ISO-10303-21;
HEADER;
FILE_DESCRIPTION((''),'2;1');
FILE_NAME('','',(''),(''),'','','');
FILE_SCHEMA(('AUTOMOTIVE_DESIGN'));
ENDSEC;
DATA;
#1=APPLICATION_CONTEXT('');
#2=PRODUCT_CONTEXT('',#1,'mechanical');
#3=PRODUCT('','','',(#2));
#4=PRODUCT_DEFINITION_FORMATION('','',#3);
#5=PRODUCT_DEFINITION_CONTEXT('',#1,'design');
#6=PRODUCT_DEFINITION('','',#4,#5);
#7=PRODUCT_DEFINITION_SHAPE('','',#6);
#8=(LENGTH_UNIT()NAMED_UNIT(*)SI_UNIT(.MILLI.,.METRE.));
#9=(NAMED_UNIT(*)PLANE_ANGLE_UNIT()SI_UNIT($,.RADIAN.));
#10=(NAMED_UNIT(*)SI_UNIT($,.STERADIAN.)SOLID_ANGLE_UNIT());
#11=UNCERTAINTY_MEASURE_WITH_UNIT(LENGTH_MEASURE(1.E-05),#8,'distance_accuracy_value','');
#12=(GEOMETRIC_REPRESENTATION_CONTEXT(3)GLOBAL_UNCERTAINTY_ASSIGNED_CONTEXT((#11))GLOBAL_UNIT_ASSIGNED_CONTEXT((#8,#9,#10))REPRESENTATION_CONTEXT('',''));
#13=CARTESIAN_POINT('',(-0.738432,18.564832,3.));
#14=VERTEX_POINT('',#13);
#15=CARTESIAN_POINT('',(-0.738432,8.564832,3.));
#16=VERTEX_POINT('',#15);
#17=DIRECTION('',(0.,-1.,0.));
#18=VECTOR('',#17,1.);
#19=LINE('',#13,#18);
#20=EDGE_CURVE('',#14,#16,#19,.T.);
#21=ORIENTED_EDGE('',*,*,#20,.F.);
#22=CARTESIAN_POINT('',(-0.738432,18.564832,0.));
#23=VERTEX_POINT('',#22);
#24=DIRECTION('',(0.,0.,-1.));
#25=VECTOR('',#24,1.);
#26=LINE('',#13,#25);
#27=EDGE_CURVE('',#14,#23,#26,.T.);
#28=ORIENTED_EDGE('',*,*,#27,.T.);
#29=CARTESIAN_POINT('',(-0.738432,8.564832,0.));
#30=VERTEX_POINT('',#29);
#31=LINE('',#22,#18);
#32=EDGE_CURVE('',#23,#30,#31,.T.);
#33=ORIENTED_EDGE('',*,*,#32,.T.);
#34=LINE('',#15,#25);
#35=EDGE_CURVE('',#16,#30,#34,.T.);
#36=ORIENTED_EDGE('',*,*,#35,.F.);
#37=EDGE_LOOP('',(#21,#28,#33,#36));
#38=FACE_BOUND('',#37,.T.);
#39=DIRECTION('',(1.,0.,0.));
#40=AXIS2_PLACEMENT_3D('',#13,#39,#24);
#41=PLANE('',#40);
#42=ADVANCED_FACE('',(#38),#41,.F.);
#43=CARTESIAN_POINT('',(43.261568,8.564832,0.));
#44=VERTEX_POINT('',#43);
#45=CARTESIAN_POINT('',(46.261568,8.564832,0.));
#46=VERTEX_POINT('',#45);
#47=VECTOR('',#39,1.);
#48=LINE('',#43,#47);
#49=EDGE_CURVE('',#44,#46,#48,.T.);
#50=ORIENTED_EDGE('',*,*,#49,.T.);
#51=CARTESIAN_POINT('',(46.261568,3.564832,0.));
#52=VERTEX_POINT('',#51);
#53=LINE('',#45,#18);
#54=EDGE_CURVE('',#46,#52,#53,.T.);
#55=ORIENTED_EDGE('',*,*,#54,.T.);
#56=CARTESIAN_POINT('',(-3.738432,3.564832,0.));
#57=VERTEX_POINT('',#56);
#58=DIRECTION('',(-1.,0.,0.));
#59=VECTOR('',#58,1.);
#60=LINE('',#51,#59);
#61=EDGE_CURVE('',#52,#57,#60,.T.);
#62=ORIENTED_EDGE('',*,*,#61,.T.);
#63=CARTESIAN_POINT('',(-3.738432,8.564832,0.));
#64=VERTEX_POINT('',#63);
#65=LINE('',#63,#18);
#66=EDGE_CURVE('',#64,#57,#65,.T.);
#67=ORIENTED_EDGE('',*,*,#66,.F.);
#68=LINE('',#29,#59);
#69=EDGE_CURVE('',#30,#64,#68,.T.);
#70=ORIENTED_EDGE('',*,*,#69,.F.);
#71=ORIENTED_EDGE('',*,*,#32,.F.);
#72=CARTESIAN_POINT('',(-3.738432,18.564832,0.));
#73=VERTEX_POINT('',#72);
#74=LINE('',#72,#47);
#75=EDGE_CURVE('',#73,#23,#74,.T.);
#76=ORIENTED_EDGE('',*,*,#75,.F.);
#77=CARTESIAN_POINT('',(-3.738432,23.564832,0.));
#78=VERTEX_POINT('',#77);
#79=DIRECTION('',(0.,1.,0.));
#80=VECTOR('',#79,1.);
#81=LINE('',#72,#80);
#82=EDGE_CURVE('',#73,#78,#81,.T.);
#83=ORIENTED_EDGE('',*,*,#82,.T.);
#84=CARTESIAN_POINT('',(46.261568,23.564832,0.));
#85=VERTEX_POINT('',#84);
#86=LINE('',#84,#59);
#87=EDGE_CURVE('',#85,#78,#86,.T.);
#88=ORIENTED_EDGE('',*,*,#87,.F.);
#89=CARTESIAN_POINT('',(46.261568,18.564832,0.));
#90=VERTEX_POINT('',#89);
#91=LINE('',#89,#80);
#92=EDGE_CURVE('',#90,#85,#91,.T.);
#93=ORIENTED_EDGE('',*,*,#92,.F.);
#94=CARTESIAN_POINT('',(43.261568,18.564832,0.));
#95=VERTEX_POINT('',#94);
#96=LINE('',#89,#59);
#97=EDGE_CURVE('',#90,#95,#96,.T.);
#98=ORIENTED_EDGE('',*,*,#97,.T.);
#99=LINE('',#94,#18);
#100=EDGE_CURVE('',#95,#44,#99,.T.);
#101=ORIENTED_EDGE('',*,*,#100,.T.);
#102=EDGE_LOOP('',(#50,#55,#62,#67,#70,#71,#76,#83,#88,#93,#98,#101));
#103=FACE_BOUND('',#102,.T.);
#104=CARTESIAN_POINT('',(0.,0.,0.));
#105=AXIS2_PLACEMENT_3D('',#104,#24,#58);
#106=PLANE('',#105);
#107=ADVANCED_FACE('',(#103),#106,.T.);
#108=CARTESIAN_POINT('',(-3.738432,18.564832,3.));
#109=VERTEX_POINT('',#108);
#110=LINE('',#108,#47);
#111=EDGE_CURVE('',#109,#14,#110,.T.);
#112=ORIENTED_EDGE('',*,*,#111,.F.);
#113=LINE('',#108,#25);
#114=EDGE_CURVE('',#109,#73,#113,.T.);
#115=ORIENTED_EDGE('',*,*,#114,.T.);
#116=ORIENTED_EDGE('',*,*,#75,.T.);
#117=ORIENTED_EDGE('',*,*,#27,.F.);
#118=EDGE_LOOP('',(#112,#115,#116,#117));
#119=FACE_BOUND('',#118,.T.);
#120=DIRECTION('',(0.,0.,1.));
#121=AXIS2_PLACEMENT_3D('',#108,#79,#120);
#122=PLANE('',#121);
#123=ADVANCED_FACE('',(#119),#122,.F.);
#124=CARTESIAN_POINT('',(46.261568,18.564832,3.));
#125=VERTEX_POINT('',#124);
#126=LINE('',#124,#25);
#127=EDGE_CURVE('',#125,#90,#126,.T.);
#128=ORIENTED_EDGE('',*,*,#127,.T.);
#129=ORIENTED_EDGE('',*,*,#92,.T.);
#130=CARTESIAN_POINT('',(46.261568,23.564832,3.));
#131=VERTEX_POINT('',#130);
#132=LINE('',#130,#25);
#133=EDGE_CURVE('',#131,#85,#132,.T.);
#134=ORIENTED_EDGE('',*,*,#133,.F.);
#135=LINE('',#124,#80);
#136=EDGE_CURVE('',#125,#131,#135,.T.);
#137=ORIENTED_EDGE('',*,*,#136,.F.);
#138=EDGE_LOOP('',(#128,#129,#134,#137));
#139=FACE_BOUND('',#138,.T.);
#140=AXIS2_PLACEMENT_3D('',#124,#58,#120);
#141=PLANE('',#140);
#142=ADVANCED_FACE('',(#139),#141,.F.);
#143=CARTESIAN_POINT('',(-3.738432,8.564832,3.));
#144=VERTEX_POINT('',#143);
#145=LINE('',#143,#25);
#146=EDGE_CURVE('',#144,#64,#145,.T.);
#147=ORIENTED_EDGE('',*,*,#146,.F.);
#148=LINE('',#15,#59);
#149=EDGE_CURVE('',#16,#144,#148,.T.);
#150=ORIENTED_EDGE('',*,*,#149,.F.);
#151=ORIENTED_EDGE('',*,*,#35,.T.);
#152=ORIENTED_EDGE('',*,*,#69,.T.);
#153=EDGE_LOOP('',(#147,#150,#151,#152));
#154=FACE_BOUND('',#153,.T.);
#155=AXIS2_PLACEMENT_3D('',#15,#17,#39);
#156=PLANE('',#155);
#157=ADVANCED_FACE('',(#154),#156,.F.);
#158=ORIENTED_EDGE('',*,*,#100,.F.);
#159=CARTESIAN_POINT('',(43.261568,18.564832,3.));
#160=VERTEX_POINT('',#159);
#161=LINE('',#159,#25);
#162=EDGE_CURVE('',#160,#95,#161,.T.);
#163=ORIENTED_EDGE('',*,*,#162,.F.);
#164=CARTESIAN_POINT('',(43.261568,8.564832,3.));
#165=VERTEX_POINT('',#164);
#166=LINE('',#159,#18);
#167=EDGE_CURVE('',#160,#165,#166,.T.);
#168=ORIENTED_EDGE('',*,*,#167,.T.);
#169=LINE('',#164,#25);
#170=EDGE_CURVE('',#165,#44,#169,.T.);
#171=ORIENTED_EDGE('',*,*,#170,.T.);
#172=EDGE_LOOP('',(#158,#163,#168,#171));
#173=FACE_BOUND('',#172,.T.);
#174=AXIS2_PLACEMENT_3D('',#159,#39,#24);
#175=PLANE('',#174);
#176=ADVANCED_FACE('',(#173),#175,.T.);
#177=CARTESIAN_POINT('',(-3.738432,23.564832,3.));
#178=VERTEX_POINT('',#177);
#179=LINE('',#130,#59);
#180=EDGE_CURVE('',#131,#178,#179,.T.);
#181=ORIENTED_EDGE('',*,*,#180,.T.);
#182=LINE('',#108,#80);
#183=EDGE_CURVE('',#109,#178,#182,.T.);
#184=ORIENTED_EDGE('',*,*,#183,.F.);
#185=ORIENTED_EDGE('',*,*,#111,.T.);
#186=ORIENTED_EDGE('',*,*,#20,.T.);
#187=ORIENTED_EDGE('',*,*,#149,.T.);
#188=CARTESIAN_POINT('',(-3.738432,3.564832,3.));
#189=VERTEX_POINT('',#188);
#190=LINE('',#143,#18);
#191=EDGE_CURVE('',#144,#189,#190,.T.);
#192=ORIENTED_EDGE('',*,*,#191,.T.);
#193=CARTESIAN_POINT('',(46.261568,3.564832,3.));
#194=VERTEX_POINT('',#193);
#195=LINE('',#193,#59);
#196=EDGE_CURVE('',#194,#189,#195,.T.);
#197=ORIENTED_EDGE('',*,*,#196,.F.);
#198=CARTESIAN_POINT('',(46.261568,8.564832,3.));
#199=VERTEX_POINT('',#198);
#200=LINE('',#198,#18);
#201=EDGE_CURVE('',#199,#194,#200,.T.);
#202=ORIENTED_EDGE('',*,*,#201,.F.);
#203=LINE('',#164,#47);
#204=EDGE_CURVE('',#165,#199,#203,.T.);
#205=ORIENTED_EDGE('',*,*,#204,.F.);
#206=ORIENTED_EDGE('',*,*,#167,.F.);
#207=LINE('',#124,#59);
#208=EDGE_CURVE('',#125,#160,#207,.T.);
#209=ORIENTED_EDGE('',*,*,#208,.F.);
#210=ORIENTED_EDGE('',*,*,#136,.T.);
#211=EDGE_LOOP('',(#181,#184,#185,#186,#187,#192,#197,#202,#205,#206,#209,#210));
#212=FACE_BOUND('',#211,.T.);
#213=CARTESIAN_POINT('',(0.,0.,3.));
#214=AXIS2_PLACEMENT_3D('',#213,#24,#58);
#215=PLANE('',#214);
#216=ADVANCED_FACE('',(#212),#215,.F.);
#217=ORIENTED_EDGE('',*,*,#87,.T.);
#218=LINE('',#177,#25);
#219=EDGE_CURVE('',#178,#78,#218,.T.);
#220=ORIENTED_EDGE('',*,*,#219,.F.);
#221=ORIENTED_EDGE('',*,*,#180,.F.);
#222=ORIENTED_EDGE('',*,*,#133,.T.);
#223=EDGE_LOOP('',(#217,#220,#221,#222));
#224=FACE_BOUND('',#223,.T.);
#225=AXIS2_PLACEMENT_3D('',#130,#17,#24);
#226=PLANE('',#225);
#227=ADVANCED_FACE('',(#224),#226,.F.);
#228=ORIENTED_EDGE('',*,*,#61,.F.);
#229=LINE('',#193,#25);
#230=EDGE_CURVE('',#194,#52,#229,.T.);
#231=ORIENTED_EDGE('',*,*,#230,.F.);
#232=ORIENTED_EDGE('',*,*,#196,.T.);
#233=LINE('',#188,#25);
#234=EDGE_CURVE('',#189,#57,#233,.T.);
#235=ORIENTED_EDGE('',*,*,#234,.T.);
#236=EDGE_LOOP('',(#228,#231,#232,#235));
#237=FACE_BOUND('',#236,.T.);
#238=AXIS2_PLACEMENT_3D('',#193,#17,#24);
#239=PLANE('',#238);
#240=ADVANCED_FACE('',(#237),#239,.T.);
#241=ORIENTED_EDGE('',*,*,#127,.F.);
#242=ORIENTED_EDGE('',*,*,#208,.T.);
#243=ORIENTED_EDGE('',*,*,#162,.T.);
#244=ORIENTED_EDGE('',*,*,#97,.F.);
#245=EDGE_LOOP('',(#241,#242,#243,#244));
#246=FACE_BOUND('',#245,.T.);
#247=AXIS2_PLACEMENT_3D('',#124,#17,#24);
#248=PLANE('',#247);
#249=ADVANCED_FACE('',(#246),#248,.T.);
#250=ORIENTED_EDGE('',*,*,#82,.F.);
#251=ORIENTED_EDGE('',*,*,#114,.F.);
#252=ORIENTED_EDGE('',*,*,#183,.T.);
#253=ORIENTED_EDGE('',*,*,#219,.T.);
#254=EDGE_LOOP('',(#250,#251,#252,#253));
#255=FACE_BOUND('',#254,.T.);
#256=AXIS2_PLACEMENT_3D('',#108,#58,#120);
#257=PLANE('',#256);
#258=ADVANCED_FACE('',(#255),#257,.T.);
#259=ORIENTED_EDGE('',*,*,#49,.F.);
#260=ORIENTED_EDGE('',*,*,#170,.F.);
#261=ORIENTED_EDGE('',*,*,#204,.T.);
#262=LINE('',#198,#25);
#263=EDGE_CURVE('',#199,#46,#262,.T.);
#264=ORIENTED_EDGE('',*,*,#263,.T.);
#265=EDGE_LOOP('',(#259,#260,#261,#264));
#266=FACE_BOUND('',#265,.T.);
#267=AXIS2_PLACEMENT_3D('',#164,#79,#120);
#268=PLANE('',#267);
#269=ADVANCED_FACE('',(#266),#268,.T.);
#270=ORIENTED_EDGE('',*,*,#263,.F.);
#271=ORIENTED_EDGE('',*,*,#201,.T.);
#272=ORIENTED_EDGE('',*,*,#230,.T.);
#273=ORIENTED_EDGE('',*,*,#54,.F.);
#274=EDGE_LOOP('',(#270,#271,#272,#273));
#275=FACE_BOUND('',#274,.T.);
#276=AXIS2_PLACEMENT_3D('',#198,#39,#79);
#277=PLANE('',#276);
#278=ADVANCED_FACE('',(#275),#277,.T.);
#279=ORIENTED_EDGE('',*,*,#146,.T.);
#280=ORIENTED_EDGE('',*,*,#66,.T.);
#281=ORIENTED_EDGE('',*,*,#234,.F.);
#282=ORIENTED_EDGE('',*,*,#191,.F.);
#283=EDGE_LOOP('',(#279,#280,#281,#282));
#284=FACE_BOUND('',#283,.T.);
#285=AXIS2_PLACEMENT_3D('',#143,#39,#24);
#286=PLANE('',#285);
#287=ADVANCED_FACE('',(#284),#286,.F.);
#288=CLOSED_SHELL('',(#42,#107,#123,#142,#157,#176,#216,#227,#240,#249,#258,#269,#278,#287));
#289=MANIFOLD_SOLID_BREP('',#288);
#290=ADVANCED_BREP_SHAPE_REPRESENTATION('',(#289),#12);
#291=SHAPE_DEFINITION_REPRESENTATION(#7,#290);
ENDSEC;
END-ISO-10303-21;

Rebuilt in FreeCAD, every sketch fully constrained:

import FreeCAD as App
import Part
import Sketcher

V = App.Vector
Q = App.Units.Quantity

doc = App.newDocument("Part")
body = doc.addObject("PartDesign::Body", "Body")

# Sketch on XY plane
sketch1 = body.newObject("Sketcher::SketchObject", "Sketch")
sketch1.AttachmentSupport = (doc.getObject("XY_Plane"), [""])
sketch1.MapMode = "FlatFace"
sketch1.addGeometry([
    Part.LineSegment(V(-3.7, 3.6, 0), V(46.3, 3.6, 0)),  # 0
    Part.LineSegment(V(46.3, 3.6, 0), V(46.3, 8.6, 0)),  # 1
    Part.LineSegment(V(46.3, 8.6, 0), V(43.3, 8.6, 0)),  # 2
    Part.LineSegment(V(43.3, 8.6, 0), V(43.3, 18.6, 0)),  # 3
    Part.LineSegment(V(43.3, 18.6, 0), V(46.3, 18.6, 0)),  # 4
    Part.LineSegment(V(46.3, 18.6, 0), V(46.3, 23.6, 0)),  # 5
    Part.LineSegment(V(46.3, 23.6, 0), V(-3.7, 23.6, 0)),  # 6
    Part.LineSegment(V(-3.7, 23.6, 0), V(-3.7, 18.6, 0)),  # 7
    Part.LineSegment(V(-3.7, 18.6, 0), V(-0.7, 18.6, 0)),  # 8
    Part.LineSegment(V(-0.7, 18.6, 0), V(-0.7, 8.6, 0)),  # 9
    Part.LineSegment(V(-0.7, 8.6, 0), V(-3.7, 8.6, 0)),  # 10
    Part.LineSegment(V(-3.7, 8.6, 0), V(-3.7, 3.6, 0)),  # 11
], False)
sketch1.addConstraint([
    Sketcher.Constraint("Coincident", 0, 2, 1, 1),
    Sketcher.Constraint("Coincident", 1, 2, 2, 1),
    Sketcher.Constraint("Coincident", 2, 2, 3, 1),
    Sketcher.Constraint("Coincident", 3, 2, 4, 1),
    Sketcher.Constraint("Coincident", 4, 2, 5, 1),
    Sketcher.Constraint("Coincident", 5, 2, 6, 1),
    Sketcher.Constraint("Coincident", 6, 2, 7, 1),
    Sketcher.Constraint("Coincident", 7, 2, 8, 1),
    Sketcher.Constraint("Coincident", 8, 2, 9, 1),
    Sketcher.Constraint("Coincident", 9, 2, 10, 1),
    Sketcher.Constraint("Coincident", 10, 2, 11, 1),
    Sketcher.Constraint("Coincident", 11, 2, 0, 1),
    Sketcher.Constraint("Horizontal", 0),
    Sketcher.Constraint("Vertical", 1),
    Sketcher.Constraint("Horizontal", 2),
    Sketcher.Constraint("Vertical", 3),
    Sketcher.Constraint("Horizontal", 4),
    Sketcher.Constraint("Vertical", 5),
    Sketcher.Constraint("Horizontal", 6),
    Sketcher.Constraint("Vertical", 7),
    Sketcher.Constraint("Horizontal", 8),
    Sketcher.Constraint("Vertical", 9),
    Sketcher.Constraint("Horizontal", 10),
    Sketcher.Constraint("Vertical", 11),
    Sketcher.Constraint("Horizontal", 4, 2, 7, 2),
    Sketcher.Constraint("Horizontal", 2, 2, 9, 2),
    Sketcher.Constraint("Vertical", 1, 2, 4, 2),
    Sketcher.Constraint("Vertical", 7, 2, 10, 2),
    Sketcher.Constraint("Equal", 4, 8),
    Sketcher.Constraint("Equal", 1, 5),
    Sketcher.Constraint("DistanceX", 0, 1, 0, 2, Q("50 mm")),
    Sketcher.Constraint("DistanceX", 2, 2, 2, 1, Q("3 mm")),
    Sketcher.Constraint("DistanceY", 1, 1, 1, 2, Q("5 mm")),
    Sketcher.Constraint("DistanceY", 3, 1, 3, 2, Q("10 mm")),
    Sketcher.Constraint("DistanceY", -1, 1, 0, 2, Q("3.564832 mm")),
    Sketcher.Constraint("DistanceX", 6, 2, -1, 1, Q("3.738432 mm")),
])
pad1 = body.newObject("PartDesign::Pad", "Pad")
pad1.Profile = sketch1
pad1.Length = 3

doc.recompute()
